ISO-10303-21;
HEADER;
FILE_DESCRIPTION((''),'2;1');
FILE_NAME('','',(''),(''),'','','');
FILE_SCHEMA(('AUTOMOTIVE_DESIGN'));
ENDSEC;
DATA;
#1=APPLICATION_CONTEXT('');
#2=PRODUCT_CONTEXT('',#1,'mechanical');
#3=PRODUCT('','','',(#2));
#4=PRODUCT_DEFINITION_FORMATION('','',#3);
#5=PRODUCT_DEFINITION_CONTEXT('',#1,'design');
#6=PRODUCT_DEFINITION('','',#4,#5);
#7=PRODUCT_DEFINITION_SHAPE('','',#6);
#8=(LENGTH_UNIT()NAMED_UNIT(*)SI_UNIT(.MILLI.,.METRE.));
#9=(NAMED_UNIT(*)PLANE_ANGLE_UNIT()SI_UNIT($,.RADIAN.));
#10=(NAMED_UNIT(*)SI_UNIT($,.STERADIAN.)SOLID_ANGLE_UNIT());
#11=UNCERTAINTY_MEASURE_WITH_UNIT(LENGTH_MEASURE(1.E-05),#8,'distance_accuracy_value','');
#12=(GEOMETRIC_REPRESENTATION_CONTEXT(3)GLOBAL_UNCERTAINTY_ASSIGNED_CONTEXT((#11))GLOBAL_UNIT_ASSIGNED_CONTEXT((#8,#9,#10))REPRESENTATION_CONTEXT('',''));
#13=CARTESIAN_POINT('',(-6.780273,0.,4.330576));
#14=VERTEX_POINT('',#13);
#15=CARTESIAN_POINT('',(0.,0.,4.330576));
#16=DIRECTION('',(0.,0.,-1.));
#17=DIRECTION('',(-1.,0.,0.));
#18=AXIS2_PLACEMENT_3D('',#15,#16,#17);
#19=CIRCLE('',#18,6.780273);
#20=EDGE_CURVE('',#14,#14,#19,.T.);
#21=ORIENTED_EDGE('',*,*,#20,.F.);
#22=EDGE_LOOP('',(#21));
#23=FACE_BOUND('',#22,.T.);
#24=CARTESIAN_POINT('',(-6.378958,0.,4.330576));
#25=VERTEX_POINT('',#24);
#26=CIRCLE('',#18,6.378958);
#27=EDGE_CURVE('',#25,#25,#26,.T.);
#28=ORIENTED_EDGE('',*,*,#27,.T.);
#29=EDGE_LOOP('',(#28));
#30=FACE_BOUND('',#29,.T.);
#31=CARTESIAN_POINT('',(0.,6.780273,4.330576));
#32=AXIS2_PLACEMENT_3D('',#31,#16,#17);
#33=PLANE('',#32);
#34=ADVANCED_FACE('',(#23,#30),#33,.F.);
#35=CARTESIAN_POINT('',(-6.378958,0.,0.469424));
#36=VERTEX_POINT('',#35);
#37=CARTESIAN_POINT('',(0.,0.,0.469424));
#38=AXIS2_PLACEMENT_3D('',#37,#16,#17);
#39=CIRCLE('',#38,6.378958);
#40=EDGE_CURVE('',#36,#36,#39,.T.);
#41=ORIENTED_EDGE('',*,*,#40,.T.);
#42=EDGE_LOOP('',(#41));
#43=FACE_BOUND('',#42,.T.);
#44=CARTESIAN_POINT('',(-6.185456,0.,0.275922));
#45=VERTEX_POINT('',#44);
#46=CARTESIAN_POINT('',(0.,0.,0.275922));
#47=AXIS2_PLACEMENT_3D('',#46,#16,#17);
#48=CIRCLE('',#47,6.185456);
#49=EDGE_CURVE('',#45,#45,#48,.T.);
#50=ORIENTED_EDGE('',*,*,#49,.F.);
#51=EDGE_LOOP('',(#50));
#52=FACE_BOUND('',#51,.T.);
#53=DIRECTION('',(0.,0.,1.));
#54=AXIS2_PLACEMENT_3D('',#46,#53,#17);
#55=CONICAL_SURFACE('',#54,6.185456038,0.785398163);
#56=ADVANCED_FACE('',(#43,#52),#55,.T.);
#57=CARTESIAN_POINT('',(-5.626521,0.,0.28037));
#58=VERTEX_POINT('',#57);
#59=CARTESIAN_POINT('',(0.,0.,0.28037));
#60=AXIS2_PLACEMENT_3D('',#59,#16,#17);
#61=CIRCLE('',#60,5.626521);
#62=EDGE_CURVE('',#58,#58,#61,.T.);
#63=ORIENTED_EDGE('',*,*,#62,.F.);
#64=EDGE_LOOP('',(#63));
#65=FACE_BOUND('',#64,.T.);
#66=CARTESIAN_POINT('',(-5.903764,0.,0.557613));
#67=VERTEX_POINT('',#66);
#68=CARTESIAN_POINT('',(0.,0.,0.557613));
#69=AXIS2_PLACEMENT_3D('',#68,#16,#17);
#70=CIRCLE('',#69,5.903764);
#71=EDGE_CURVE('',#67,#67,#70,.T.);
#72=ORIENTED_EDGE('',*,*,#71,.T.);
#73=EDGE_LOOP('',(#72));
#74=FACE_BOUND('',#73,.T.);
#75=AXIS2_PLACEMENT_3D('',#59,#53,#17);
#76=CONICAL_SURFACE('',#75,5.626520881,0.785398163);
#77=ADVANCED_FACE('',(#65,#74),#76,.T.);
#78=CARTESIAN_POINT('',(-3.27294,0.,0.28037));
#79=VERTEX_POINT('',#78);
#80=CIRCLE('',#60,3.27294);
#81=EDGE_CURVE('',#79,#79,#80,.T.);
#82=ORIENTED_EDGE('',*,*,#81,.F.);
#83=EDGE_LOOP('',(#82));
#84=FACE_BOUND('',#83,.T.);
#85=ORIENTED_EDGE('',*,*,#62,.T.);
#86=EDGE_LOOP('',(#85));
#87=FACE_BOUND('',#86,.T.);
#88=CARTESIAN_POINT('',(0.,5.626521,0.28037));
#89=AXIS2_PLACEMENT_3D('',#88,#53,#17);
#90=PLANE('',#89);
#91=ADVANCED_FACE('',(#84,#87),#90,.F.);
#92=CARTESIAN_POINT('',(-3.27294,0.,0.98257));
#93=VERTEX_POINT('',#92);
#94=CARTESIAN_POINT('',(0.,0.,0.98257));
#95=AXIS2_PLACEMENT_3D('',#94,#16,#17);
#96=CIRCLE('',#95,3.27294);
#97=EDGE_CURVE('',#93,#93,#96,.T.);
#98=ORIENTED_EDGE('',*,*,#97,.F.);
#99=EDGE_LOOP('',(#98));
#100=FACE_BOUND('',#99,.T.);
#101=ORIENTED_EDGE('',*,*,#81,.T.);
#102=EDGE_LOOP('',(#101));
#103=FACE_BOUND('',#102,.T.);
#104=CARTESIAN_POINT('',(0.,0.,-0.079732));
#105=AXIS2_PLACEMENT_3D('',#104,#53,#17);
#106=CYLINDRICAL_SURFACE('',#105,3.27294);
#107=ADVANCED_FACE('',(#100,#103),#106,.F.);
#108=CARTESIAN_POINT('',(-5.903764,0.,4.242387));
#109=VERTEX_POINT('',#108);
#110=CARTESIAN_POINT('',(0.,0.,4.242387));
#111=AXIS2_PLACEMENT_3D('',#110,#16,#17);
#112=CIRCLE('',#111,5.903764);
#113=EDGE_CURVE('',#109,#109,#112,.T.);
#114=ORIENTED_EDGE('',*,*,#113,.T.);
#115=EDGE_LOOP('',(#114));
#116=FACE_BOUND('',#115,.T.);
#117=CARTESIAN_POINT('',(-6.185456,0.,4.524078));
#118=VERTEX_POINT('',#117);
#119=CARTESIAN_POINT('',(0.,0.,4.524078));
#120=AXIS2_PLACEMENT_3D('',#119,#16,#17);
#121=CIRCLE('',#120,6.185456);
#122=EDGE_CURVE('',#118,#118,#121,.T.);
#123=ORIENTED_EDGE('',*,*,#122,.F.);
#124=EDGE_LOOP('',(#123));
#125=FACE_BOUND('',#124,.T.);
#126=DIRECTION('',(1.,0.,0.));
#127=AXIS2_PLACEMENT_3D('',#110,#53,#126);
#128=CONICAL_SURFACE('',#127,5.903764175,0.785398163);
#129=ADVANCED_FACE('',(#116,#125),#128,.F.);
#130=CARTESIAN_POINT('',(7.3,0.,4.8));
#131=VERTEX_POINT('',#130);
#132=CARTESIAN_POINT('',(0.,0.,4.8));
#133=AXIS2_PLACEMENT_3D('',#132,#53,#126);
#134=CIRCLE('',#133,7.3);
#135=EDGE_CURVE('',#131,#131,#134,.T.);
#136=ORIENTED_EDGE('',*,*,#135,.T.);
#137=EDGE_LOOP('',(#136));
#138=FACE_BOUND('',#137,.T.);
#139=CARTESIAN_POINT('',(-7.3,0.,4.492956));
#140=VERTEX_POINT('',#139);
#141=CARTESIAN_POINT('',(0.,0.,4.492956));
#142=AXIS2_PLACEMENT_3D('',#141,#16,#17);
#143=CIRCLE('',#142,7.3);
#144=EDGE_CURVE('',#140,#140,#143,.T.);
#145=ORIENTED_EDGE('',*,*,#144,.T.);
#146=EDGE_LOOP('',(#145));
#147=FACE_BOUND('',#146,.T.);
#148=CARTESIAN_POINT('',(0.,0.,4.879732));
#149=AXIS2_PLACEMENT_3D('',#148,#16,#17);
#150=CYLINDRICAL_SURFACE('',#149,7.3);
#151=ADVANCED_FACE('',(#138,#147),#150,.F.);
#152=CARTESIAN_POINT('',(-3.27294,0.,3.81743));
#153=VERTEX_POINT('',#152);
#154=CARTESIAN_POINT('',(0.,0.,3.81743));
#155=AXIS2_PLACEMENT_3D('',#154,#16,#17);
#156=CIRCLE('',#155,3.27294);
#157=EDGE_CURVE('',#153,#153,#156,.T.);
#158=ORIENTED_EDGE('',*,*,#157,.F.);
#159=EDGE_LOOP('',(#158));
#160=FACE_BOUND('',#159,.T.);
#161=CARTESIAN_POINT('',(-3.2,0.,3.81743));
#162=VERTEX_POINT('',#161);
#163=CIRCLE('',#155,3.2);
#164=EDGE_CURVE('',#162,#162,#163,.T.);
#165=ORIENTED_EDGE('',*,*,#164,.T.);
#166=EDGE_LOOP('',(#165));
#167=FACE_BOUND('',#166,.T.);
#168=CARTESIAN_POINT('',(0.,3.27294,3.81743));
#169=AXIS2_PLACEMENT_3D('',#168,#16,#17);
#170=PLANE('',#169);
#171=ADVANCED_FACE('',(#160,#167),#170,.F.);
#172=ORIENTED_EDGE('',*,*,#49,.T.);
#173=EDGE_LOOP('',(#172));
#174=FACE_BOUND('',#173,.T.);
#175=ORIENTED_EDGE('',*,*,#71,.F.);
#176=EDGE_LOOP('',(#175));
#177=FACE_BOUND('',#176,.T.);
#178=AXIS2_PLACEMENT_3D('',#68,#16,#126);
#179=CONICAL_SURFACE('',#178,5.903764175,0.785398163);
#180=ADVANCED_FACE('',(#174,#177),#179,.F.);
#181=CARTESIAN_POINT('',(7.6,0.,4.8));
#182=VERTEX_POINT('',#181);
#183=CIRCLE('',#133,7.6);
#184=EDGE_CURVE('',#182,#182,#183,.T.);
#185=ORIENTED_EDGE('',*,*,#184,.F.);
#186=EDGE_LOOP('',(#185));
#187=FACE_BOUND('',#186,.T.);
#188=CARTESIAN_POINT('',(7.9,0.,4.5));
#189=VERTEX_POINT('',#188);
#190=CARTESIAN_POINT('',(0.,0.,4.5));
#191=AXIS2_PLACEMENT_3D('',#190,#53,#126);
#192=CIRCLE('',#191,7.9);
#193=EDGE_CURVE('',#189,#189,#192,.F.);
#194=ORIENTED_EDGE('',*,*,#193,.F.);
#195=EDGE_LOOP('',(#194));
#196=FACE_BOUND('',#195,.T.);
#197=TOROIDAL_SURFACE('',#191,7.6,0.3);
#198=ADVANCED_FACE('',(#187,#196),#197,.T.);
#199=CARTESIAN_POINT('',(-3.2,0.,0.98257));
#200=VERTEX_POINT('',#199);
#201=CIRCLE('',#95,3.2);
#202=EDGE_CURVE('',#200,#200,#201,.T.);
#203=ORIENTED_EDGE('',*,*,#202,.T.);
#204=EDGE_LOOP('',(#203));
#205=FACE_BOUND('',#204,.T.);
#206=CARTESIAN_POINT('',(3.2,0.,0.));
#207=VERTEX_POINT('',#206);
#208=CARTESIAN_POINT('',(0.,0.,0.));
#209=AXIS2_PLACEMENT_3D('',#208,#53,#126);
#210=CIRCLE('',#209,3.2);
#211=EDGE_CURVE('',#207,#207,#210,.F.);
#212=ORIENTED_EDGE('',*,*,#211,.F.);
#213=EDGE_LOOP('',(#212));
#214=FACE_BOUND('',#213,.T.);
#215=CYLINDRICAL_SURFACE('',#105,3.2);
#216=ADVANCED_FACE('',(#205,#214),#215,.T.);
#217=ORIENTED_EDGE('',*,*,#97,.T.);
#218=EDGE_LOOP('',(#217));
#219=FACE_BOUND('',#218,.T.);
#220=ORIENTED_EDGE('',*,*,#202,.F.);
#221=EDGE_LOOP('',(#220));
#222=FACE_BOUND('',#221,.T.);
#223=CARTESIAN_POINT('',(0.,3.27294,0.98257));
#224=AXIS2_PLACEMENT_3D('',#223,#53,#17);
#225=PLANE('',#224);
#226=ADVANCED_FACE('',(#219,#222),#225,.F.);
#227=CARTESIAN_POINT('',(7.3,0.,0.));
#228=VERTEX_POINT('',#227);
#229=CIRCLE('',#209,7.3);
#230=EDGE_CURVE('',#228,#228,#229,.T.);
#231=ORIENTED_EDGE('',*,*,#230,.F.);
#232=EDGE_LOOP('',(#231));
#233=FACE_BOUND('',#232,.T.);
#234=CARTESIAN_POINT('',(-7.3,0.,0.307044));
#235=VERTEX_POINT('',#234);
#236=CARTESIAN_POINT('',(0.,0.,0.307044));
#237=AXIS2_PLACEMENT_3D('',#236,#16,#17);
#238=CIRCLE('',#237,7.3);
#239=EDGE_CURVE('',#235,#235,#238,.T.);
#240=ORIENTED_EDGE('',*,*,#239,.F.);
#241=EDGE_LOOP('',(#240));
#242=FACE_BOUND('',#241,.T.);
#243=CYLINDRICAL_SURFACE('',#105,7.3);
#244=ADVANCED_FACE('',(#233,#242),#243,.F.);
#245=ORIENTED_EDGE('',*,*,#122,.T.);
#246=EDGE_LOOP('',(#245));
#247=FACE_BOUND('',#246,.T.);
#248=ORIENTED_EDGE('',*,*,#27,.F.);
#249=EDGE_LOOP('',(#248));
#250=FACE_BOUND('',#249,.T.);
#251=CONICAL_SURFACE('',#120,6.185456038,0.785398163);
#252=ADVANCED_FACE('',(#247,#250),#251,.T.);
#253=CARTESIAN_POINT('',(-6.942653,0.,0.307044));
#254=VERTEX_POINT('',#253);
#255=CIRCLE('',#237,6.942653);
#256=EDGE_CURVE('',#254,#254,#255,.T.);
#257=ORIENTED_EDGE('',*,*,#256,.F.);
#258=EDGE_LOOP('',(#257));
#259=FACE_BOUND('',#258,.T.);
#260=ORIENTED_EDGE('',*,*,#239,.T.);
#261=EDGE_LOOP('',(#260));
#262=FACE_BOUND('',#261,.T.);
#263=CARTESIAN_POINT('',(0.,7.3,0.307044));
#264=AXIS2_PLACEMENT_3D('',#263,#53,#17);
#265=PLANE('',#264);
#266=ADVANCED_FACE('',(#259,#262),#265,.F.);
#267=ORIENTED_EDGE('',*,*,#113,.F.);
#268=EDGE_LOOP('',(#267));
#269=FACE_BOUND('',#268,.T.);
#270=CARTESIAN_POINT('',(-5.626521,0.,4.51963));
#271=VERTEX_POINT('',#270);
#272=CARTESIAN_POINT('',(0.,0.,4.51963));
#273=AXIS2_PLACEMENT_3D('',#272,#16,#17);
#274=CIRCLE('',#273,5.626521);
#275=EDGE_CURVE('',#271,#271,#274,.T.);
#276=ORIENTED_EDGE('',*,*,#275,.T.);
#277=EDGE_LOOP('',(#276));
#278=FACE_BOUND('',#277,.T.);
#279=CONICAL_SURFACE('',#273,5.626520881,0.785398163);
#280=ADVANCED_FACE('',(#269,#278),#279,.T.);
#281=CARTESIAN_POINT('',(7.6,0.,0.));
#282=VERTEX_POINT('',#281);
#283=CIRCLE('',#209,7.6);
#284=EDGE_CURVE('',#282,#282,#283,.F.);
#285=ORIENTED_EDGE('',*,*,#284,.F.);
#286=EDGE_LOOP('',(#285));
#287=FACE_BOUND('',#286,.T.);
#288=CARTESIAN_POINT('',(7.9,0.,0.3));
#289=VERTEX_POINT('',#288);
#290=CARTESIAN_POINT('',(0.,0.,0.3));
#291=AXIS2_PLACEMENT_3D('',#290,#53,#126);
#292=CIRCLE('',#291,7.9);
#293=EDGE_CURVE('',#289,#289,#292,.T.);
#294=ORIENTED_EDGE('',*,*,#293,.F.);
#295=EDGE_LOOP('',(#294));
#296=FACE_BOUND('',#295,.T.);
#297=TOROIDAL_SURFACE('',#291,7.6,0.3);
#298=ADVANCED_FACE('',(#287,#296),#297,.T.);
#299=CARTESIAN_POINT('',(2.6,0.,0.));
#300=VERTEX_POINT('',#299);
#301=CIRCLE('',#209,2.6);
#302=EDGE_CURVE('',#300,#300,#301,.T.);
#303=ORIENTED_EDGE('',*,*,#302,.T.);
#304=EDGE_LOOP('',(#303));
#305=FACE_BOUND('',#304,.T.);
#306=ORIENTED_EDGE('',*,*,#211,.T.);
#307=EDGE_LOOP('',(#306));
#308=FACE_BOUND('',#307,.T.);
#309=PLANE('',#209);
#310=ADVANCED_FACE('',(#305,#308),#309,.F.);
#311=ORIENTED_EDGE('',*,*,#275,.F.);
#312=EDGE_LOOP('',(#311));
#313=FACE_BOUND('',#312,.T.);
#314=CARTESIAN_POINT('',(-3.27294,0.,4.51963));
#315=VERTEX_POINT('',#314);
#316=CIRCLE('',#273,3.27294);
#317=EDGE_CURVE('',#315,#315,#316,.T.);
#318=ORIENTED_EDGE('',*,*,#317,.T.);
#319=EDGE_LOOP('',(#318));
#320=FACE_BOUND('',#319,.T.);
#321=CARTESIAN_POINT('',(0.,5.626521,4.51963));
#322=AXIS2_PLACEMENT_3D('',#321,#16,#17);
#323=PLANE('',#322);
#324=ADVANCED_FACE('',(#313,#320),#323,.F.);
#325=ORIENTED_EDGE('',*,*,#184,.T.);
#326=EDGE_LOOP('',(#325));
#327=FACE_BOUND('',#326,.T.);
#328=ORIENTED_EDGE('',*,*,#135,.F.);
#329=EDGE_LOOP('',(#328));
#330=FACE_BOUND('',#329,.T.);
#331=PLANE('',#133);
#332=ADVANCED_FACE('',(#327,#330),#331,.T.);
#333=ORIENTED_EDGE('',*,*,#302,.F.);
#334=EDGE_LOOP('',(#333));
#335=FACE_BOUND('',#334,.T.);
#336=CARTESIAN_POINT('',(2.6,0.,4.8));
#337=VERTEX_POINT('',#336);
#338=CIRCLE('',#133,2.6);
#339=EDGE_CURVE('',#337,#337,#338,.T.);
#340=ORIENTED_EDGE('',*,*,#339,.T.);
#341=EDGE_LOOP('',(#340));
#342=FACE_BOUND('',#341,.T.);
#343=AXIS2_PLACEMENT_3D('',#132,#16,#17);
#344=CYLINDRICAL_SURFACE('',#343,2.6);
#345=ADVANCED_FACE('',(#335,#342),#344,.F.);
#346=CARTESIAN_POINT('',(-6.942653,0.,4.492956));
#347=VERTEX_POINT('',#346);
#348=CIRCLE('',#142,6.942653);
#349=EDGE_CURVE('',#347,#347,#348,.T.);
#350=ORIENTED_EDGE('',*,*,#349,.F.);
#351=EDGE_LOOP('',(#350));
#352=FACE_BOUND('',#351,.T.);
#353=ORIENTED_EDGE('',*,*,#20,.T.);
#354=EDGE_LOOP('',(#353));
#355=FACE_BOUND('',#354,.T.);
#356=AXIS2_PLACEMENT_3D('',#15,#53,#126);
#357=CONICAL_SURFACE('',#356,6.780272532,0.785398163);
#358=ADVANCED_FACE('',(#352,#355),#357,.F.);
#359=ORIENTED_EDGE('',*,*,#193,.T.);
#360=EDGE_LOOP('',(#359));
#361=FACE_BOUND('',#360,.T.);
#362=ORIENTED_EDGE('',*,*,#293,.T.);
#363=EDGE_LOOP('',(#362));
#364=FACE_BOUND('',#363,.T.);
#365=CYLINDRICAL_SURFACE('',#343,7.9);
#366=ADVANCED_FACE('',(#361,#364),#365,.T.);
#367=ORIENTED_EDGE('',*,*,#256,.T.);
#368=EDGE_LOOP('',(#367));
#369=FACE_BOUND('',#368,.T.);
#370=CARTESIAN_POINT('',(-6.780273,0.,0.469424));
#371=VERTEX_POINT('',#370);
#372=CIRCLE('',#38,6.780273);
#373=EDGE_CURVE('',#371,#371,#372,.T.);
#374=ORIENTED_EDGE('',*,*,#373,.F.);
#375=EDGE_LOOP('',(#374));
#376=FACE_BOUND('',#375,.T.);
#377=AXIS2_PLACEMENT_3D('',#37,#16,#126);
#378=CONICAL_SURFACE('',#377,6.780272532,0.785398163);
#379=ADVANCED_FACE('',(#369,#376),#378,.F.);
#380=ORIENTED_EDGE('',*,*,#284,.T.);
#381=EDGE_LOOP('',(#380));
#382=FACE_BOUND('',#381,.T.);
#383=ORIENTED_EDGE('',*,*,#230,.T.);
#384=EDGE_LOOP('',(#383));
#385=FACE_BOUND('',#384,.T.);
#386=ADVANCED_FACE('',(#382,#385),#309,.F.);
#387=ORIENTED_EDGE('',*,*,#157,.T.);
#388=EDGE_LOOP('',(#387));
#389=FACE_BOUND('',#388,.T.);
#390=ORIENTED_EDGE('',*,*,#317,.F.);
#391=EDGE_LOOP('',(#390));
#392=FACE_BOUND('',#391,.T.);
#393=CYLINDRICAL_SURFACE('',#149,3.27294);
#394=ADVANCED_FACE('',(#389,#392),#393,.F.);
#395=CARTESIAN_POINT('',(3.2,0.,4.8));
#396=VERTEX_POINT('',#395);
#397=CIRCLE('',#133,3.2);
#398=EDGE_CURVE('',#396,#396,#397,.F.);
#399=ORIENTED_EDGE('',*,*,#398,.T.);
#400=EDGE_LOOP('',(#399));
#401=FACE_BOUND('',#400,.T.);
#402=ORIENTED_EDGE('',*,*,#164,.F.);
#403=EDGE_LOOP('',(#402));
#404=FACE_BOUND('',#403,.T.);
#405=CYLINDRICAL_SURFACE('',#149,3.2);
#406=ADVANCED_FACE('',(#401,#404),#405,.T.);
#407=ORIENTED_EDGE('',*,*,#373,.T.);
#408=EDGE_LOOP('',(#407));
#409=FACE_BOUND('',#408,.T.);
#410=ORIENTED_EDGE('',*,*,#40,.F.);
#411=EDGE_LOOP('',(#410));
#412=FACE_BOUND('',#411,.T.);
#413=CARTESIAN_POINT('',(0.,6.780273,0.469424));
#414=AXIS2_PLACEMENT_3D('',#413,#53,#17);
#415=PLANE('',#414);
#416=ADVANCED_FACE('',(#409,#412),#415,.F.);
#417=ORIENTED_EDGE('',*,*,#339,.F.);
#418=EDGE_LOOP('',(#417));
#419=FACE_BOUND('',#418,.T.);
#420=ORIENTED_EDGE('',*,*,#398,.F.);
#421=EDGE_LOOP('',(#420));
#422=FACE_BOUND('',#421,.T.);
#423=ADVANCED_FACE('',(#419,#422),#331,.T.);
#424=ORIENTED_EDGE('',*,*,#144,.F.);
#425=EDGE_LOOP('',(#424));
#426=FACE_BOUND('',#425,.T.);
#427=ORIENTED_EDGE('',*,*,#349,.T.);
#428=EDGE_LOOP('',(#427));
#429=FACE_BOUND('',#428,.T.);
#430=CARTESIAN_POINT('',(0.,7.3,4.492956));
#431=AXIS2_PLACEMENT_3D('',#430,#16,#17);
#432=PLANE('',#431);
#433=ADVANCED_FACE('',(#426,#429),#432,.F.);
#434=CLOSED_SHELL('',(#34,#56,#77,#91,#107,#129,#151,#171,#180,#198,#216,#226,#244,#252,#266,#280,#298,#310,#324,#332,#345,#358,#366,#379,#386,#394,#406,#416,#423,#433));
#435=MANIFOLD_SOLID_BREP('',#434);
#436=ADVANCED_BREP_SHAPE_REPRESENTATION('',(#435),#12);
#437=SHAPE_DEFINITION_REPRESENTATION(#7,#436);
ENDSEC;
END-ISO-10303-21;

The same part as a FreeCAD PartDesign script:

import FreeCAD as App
import Part
import Sketcher
Q = App.Units.Quantity


def edges_at(feature, points):
    """Names of the edges that pass closest to the given points."""
    edges = feature.Shape.Edges
    near = lambda p: min(range(len(edges)), key=lambda i: edges[i].distToShape(Part.Vertex(*p))[0])
    return sorted({f"Edge{near(p) + 1}" for p in points})


def add_polygon(sketch, points):
    """Adds a closed chain of lines whose ends are joined by coincident constraints."""
    first, n = sketch.GeometryCount, len(points)
    for a, b in zip(points, points[1:] + points[:1]):
        sketch.addGeometry(Part.LineSegment(App.Vector(*a, 0), App.Vector(*b, 0)), False)
    for i in range(n):
        sketch.addConstraint(Sketcher.Constraint("Coincident", first + i, 2, first + (i + 1) % n, 1))

doc = App.newDocument("Part")
body = doc.addObject("PartDesign::Body", "Body")

# Sketch on XY plane
sketch1 = doc.addObject("Sketcher::SketchObject", "Sketch")
body.addObject(sketch1)
sketch1.AttachmentSupport = (doc.XY_Plane, [""])
sketch1.MapMode = "FlatFace"
sketch1.addGeometry(Part.Circle(App.Vector(0, 0, 0), App.Vector(0, 0, 1), 7.9), False)
sketch1.addGeometry(Part.Circle(App.Vector(0, 0, 0), App.Vector(0, 0, 1), 2.6), False)
sketch1.addConstraint(Sketcher.Constraint("Coincident", 0, 3, -1, 1))
sketch1.addConstraint(Sketcher.Constraint("Coincident", 1, 3, -1, 1))
sketch1.addConstraint(Sketcher.Constraint("Diameter", 0, Q("15.8 mm")))
sketch1.addConstraint(Sketcher.Constraint("Diameter", 1, Q("5.2 mm")))
pad1 = doc.addObject("PartDesign::Pad", "Pad")
body.addObject(pad1)
pad1.Profile = sketch1
pad1.Length = 4.8

# Sketch on YZ plane
sketch2 = doc.addObject("Sketcher::SketchObject", "Sketch001")
body.addObject(sketch2)
sketch2.AttachmentSupport = (doc.YZ_Plane, [""])
sketch2.MapMode = "FlatFace"
add_polygon(sketch2, [(7.3, 4.49), (7.3, 5.87), (0, 5.87), (0, 4.88), (3.2, 4.88), (3.2, 3.82), (3.27, 3.82), (3.27, 4.52), (5.63, 4.52), (5.9, 4.24), (6.19, 4.52), (6.38, 4.33), (6.78, 4.33), (6.94, 4.49)])  # lines 0-13
sketch2.addConstraint(Sketcher.Constraint("Vertical", 0))
sketch2.addConstraint(Sketcher.Constraint("Horizontal", 1))
sketch2.addConstraint(Sketcher.Constraint("Vertical", 2))
sketch2.addConstraint(Sketcher.Constraint("Horizontal", 3))
sketch2.addConstraint(Sketcher.Constraint("Vertical", 4))
sketch2.addConstraint(Sketcher.Constraint("Horizontal", 5))
sketch2.addConstraint(Sketcher.Constraint("Vertical", 6))
sketch2.addConstraint(Sketcher.Constraint("Horizontal", 7))
sketch2.addConstraint(Sketcher.Constraint("Horizontal", 11))
sketch2.addConstraint(Sketcher.Constraint("Horizontal", 13))
sketch2.addConstraint(Sketcher.Constraint("PointOnObject", 1, 2, -2))
sketch2.addConstraint(Sketcher.Constraint("Perpendicular", 8, 9))
sketch2.addConstraint(Sketcher.Constraint("Perpendicular", 9, 10))
sketch2.addConstraint(Sketcher.Constraint("Perpendicular", 10, 12))
sketch2.addConstraint(Sketcher.Constraint("Angle", 8, Q("-45 deg")))
sketch2.addConstraint(Sketcher.Constraint("DistanceX", 1, 2, 1, 1, Q("7.3 mm")))
sketch2.addConstraint(Sketcher.Constraint("DistanceX", 3, 1, 3, 2, Q("3.2 mm")))
sketch2.addConstraint(Sketcher.Constraint("DistanceY", 4, 2, 4, 1, Q("1.062302 mm")))
sketch2.addConstraint(Sketcher.Constraint("DistanceY", 6, 1, 6, 2, Q("0.7022 mm")))
sketch2.addConstraint(Sketcher.Constraint("DistanceX", 5, 1, 5, 2, Q("0.07294 mm")))
sketch2.addConstraint(Sketcher.Constraint("DistanceX", 7, 1, 7, 2, Q("2.353581 mm")))
sketch2.addConstraint(Sketcher.Constraint("DistanceY", 2, 2, 2, 1, Q("0.989461 mm")))
sketch2.addConstraint(Sketcher.Constraint("Distance", 8, Q("0.392081 mm")))
sketch2.addConstraint(Sketcher.Constraint("Distance", 12, Q("0.22964 mm")))
sketch2.addConstraint(Sketcher.Constraint("DistanceX", 11, 1, 11, 2, Q("0.401314 mm")))
sketch2.addConstraint(Sketcher.Constraint("DistanceX", 13, 1, 13, 2, Q("0.357347 mm")))
sketch2.addConstraint(Sketcher.Constraint("DistanceY", 0, 1, 0, 2, Q("1.376237 mm")))
sketch2.addConstraint(Sketcher.Constraint("DistanceY", -1, 1, 4, 2, Q("3.81743 mm")))
groove = doc.addObject("PartDesign::Groove", "Groove")
body.addObject(groove)
groove.Profile = sketch2
groove.ReferenceAxis = (sketch2, ["V_Axis"])
groove.Angle = 360
doc.recompute()

datumplane = doc.addObject("PartDesign::Plane", "DatumPlane")
body.addObject(datumplane)
datumplane.AttachmentSupport = (doc.XY_Plane, [""])
datumplane.MapMode = "FlatFace"
datumplane.AttachmentOffset = App.Placement(App.Vector(0, 0, 2.4), App.Rotation())
mirrored = doc.addObject("PartDesign::Mirrored", "Mirrored")
body.addObject(mirrored)
mirrored.Originals = [groove]
mirrored.MirrorPlane = (datumplane, [""])
body.Tip = mirrored
doc.recompute()

fillet = doc.addObject("PartDesign::Fillet", "Fillet")
body.addObject(fillet)
fillet.Base = (mirrored, edges_at(mirrored, [(-7.9, 0, 0), (-7.9, 0, 4.8)]))
fillet.Radius = 0.3

doc.recompute()
